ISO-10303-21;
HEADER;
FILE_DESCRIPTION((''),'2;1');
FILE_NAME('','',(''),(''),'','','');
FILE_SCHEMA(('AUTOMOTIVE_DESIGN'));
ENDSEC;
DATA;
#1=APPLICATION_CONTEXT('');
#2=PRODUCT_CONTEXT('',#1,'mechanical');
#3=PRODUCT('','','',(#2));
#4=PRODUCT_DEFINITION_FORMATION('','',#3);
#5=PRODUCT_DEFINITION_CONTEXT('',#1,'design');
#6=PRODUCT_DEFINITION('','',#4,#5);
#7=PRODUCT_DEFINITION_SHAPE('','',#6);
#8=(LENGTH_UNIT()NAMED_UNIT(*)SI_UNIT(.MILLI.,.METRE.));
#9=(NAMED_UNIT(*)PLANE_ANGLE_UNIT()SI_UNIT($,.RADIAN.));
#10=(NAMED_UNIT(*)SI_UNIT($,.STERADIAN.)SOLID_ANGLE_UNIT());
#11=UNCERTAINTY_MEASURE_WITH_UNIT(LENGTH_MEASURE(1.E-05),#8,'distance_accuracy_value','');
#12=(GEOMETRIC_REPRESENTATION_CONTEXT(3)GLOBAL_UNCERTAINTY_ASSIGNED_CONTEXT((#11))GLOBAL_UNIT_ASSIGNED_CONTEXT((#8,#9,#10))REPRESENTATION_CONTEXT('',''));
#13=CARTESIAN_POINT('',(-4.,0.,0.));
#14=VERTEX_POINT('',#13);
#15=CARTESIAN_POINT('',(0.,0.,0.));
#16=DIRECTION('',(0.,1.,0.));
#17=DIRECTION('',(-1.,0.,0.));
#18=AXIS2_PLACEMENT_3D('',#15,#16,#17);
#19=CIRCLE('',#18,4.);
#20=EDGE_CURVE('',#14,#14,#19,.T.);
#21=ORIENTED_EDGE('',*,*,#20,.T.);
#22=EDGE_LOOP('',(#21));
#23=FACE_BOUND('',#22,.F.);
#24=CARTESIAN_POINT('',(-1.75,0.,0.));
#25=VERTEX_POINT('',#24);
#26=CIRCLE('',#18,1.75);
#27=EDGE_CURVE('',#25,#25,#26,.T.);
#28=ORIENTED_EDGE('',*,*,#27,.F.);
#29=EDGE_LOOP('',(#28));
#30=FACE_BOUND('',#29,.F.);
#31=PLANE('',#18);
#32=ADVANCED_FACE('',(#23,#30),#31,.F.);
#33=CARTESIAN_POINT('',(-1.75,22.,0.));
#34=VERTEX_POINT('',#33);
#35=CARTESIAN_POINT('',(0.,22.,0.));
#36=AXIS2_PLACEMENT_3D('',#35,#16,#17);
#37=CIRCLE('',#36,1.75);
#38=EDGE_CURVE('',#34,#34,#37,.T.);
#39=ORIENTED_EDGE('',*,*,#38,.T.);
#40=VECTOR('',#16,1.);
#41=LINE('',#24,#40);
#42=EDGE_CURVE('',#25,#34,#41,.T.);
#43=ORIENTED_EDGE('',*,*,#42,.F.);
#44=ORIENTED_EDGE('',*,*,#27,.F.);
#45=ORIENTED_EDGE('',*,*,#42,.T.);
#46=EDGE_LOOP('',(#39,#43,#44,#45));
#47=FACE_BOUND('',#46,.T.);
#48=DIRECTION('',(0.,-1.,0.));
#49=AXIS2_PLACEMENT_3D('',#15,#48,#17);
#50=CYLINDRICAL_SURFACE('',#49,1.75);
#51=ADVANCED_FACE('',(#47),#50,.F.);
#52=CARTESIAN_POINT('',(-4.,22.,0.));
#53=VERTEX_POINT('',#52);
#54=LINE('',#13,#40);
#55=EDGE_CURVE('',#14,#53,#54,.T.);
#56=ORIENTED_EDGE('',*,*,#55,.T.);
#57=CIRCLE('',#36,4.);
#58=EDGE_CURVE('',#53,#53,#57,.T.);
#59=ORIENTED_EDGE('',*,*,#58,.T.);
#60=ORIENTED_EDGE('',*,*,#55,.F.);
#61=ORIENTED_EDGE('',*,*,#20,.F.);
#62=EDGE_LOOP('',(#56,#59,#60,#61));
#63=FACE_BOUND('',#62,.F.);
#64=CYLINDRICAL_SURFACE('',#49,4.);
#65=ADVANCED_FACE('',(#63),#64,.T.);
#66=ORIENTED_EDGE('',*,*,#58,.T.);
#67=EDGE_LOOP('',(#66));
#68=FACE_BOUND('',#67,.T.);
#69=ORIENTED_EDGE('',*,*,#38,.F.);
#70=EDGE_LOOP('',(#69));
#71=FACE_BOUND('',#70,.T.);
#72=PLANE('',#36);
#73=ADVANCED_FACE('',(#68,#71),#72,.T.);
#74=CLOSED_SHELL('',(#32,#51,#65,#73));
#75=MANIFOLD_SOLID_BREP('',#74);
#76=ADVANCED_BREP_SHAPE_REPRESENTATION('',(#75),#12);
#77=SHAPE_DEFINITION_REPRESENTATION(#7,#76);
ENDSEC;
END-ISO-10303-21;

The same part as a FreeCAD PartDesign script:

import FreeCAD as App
import Part
import Sketcher

V = App.Vector

doc = App.newDocument("Part")
params = doc.addObject("Spreadsheet::Sheet", "Params")
for row, (alias, value) in enumerate([
    ("sketch1_diameter", "8 mm"),
    ("sketch1_diameter2", "3.5 mm"),
    ("pad1_length", "22 mm"),
], start=1):
    params.set(f"A{row}", alias)
    params.set(f"B{row}", "=" + value)
    params.setAlias(f"B{row}", alias)

body = doc.addObject("PartDesign::Body", "Body")

sketch1 = body.newObject("Sketcher::SketchObject", "Sketch")
sketch1.AttachmentSupport = (doc.getObject("XZ_Plane"), [""])
sketch1.MapMode = "FlatFace"
sketch1.addGeometry(Part.Circle(V(0, 0, 0), V(0, 0, 1), 4), False)
sketch1.addGeometry(Part.Circle(V(0, 0, 0), V(0, 0, 1), 1.75), False)
sketch1.addConstraint(Sketcher.Constraint("Coincident", 0, 3, -1, 1))
sketch1.addConstraint(Sketcher.Constraint("Coincident", 1, 3, -1, 1))
sketch1.addConstraint(Sketcher.Constraint("Diameter", 0, 8.0))
sketch1.addConstraint(Sketcher.Constraint("Diameter", 1, 3.5))
sketch1.setExpression("Constraints[2]", "Params.sketch1_diameter")
sketch1.setExpression("Constraints[3]", "Params.sketch1_diameter2")
pad1 = body.newObject("PartDesign::Pad", "Pad")
pad1.Profile = sketch1
pad1.setExpression("Length", "Params.pad1_length")
pad1.Reversed = True

doc.recompute()
